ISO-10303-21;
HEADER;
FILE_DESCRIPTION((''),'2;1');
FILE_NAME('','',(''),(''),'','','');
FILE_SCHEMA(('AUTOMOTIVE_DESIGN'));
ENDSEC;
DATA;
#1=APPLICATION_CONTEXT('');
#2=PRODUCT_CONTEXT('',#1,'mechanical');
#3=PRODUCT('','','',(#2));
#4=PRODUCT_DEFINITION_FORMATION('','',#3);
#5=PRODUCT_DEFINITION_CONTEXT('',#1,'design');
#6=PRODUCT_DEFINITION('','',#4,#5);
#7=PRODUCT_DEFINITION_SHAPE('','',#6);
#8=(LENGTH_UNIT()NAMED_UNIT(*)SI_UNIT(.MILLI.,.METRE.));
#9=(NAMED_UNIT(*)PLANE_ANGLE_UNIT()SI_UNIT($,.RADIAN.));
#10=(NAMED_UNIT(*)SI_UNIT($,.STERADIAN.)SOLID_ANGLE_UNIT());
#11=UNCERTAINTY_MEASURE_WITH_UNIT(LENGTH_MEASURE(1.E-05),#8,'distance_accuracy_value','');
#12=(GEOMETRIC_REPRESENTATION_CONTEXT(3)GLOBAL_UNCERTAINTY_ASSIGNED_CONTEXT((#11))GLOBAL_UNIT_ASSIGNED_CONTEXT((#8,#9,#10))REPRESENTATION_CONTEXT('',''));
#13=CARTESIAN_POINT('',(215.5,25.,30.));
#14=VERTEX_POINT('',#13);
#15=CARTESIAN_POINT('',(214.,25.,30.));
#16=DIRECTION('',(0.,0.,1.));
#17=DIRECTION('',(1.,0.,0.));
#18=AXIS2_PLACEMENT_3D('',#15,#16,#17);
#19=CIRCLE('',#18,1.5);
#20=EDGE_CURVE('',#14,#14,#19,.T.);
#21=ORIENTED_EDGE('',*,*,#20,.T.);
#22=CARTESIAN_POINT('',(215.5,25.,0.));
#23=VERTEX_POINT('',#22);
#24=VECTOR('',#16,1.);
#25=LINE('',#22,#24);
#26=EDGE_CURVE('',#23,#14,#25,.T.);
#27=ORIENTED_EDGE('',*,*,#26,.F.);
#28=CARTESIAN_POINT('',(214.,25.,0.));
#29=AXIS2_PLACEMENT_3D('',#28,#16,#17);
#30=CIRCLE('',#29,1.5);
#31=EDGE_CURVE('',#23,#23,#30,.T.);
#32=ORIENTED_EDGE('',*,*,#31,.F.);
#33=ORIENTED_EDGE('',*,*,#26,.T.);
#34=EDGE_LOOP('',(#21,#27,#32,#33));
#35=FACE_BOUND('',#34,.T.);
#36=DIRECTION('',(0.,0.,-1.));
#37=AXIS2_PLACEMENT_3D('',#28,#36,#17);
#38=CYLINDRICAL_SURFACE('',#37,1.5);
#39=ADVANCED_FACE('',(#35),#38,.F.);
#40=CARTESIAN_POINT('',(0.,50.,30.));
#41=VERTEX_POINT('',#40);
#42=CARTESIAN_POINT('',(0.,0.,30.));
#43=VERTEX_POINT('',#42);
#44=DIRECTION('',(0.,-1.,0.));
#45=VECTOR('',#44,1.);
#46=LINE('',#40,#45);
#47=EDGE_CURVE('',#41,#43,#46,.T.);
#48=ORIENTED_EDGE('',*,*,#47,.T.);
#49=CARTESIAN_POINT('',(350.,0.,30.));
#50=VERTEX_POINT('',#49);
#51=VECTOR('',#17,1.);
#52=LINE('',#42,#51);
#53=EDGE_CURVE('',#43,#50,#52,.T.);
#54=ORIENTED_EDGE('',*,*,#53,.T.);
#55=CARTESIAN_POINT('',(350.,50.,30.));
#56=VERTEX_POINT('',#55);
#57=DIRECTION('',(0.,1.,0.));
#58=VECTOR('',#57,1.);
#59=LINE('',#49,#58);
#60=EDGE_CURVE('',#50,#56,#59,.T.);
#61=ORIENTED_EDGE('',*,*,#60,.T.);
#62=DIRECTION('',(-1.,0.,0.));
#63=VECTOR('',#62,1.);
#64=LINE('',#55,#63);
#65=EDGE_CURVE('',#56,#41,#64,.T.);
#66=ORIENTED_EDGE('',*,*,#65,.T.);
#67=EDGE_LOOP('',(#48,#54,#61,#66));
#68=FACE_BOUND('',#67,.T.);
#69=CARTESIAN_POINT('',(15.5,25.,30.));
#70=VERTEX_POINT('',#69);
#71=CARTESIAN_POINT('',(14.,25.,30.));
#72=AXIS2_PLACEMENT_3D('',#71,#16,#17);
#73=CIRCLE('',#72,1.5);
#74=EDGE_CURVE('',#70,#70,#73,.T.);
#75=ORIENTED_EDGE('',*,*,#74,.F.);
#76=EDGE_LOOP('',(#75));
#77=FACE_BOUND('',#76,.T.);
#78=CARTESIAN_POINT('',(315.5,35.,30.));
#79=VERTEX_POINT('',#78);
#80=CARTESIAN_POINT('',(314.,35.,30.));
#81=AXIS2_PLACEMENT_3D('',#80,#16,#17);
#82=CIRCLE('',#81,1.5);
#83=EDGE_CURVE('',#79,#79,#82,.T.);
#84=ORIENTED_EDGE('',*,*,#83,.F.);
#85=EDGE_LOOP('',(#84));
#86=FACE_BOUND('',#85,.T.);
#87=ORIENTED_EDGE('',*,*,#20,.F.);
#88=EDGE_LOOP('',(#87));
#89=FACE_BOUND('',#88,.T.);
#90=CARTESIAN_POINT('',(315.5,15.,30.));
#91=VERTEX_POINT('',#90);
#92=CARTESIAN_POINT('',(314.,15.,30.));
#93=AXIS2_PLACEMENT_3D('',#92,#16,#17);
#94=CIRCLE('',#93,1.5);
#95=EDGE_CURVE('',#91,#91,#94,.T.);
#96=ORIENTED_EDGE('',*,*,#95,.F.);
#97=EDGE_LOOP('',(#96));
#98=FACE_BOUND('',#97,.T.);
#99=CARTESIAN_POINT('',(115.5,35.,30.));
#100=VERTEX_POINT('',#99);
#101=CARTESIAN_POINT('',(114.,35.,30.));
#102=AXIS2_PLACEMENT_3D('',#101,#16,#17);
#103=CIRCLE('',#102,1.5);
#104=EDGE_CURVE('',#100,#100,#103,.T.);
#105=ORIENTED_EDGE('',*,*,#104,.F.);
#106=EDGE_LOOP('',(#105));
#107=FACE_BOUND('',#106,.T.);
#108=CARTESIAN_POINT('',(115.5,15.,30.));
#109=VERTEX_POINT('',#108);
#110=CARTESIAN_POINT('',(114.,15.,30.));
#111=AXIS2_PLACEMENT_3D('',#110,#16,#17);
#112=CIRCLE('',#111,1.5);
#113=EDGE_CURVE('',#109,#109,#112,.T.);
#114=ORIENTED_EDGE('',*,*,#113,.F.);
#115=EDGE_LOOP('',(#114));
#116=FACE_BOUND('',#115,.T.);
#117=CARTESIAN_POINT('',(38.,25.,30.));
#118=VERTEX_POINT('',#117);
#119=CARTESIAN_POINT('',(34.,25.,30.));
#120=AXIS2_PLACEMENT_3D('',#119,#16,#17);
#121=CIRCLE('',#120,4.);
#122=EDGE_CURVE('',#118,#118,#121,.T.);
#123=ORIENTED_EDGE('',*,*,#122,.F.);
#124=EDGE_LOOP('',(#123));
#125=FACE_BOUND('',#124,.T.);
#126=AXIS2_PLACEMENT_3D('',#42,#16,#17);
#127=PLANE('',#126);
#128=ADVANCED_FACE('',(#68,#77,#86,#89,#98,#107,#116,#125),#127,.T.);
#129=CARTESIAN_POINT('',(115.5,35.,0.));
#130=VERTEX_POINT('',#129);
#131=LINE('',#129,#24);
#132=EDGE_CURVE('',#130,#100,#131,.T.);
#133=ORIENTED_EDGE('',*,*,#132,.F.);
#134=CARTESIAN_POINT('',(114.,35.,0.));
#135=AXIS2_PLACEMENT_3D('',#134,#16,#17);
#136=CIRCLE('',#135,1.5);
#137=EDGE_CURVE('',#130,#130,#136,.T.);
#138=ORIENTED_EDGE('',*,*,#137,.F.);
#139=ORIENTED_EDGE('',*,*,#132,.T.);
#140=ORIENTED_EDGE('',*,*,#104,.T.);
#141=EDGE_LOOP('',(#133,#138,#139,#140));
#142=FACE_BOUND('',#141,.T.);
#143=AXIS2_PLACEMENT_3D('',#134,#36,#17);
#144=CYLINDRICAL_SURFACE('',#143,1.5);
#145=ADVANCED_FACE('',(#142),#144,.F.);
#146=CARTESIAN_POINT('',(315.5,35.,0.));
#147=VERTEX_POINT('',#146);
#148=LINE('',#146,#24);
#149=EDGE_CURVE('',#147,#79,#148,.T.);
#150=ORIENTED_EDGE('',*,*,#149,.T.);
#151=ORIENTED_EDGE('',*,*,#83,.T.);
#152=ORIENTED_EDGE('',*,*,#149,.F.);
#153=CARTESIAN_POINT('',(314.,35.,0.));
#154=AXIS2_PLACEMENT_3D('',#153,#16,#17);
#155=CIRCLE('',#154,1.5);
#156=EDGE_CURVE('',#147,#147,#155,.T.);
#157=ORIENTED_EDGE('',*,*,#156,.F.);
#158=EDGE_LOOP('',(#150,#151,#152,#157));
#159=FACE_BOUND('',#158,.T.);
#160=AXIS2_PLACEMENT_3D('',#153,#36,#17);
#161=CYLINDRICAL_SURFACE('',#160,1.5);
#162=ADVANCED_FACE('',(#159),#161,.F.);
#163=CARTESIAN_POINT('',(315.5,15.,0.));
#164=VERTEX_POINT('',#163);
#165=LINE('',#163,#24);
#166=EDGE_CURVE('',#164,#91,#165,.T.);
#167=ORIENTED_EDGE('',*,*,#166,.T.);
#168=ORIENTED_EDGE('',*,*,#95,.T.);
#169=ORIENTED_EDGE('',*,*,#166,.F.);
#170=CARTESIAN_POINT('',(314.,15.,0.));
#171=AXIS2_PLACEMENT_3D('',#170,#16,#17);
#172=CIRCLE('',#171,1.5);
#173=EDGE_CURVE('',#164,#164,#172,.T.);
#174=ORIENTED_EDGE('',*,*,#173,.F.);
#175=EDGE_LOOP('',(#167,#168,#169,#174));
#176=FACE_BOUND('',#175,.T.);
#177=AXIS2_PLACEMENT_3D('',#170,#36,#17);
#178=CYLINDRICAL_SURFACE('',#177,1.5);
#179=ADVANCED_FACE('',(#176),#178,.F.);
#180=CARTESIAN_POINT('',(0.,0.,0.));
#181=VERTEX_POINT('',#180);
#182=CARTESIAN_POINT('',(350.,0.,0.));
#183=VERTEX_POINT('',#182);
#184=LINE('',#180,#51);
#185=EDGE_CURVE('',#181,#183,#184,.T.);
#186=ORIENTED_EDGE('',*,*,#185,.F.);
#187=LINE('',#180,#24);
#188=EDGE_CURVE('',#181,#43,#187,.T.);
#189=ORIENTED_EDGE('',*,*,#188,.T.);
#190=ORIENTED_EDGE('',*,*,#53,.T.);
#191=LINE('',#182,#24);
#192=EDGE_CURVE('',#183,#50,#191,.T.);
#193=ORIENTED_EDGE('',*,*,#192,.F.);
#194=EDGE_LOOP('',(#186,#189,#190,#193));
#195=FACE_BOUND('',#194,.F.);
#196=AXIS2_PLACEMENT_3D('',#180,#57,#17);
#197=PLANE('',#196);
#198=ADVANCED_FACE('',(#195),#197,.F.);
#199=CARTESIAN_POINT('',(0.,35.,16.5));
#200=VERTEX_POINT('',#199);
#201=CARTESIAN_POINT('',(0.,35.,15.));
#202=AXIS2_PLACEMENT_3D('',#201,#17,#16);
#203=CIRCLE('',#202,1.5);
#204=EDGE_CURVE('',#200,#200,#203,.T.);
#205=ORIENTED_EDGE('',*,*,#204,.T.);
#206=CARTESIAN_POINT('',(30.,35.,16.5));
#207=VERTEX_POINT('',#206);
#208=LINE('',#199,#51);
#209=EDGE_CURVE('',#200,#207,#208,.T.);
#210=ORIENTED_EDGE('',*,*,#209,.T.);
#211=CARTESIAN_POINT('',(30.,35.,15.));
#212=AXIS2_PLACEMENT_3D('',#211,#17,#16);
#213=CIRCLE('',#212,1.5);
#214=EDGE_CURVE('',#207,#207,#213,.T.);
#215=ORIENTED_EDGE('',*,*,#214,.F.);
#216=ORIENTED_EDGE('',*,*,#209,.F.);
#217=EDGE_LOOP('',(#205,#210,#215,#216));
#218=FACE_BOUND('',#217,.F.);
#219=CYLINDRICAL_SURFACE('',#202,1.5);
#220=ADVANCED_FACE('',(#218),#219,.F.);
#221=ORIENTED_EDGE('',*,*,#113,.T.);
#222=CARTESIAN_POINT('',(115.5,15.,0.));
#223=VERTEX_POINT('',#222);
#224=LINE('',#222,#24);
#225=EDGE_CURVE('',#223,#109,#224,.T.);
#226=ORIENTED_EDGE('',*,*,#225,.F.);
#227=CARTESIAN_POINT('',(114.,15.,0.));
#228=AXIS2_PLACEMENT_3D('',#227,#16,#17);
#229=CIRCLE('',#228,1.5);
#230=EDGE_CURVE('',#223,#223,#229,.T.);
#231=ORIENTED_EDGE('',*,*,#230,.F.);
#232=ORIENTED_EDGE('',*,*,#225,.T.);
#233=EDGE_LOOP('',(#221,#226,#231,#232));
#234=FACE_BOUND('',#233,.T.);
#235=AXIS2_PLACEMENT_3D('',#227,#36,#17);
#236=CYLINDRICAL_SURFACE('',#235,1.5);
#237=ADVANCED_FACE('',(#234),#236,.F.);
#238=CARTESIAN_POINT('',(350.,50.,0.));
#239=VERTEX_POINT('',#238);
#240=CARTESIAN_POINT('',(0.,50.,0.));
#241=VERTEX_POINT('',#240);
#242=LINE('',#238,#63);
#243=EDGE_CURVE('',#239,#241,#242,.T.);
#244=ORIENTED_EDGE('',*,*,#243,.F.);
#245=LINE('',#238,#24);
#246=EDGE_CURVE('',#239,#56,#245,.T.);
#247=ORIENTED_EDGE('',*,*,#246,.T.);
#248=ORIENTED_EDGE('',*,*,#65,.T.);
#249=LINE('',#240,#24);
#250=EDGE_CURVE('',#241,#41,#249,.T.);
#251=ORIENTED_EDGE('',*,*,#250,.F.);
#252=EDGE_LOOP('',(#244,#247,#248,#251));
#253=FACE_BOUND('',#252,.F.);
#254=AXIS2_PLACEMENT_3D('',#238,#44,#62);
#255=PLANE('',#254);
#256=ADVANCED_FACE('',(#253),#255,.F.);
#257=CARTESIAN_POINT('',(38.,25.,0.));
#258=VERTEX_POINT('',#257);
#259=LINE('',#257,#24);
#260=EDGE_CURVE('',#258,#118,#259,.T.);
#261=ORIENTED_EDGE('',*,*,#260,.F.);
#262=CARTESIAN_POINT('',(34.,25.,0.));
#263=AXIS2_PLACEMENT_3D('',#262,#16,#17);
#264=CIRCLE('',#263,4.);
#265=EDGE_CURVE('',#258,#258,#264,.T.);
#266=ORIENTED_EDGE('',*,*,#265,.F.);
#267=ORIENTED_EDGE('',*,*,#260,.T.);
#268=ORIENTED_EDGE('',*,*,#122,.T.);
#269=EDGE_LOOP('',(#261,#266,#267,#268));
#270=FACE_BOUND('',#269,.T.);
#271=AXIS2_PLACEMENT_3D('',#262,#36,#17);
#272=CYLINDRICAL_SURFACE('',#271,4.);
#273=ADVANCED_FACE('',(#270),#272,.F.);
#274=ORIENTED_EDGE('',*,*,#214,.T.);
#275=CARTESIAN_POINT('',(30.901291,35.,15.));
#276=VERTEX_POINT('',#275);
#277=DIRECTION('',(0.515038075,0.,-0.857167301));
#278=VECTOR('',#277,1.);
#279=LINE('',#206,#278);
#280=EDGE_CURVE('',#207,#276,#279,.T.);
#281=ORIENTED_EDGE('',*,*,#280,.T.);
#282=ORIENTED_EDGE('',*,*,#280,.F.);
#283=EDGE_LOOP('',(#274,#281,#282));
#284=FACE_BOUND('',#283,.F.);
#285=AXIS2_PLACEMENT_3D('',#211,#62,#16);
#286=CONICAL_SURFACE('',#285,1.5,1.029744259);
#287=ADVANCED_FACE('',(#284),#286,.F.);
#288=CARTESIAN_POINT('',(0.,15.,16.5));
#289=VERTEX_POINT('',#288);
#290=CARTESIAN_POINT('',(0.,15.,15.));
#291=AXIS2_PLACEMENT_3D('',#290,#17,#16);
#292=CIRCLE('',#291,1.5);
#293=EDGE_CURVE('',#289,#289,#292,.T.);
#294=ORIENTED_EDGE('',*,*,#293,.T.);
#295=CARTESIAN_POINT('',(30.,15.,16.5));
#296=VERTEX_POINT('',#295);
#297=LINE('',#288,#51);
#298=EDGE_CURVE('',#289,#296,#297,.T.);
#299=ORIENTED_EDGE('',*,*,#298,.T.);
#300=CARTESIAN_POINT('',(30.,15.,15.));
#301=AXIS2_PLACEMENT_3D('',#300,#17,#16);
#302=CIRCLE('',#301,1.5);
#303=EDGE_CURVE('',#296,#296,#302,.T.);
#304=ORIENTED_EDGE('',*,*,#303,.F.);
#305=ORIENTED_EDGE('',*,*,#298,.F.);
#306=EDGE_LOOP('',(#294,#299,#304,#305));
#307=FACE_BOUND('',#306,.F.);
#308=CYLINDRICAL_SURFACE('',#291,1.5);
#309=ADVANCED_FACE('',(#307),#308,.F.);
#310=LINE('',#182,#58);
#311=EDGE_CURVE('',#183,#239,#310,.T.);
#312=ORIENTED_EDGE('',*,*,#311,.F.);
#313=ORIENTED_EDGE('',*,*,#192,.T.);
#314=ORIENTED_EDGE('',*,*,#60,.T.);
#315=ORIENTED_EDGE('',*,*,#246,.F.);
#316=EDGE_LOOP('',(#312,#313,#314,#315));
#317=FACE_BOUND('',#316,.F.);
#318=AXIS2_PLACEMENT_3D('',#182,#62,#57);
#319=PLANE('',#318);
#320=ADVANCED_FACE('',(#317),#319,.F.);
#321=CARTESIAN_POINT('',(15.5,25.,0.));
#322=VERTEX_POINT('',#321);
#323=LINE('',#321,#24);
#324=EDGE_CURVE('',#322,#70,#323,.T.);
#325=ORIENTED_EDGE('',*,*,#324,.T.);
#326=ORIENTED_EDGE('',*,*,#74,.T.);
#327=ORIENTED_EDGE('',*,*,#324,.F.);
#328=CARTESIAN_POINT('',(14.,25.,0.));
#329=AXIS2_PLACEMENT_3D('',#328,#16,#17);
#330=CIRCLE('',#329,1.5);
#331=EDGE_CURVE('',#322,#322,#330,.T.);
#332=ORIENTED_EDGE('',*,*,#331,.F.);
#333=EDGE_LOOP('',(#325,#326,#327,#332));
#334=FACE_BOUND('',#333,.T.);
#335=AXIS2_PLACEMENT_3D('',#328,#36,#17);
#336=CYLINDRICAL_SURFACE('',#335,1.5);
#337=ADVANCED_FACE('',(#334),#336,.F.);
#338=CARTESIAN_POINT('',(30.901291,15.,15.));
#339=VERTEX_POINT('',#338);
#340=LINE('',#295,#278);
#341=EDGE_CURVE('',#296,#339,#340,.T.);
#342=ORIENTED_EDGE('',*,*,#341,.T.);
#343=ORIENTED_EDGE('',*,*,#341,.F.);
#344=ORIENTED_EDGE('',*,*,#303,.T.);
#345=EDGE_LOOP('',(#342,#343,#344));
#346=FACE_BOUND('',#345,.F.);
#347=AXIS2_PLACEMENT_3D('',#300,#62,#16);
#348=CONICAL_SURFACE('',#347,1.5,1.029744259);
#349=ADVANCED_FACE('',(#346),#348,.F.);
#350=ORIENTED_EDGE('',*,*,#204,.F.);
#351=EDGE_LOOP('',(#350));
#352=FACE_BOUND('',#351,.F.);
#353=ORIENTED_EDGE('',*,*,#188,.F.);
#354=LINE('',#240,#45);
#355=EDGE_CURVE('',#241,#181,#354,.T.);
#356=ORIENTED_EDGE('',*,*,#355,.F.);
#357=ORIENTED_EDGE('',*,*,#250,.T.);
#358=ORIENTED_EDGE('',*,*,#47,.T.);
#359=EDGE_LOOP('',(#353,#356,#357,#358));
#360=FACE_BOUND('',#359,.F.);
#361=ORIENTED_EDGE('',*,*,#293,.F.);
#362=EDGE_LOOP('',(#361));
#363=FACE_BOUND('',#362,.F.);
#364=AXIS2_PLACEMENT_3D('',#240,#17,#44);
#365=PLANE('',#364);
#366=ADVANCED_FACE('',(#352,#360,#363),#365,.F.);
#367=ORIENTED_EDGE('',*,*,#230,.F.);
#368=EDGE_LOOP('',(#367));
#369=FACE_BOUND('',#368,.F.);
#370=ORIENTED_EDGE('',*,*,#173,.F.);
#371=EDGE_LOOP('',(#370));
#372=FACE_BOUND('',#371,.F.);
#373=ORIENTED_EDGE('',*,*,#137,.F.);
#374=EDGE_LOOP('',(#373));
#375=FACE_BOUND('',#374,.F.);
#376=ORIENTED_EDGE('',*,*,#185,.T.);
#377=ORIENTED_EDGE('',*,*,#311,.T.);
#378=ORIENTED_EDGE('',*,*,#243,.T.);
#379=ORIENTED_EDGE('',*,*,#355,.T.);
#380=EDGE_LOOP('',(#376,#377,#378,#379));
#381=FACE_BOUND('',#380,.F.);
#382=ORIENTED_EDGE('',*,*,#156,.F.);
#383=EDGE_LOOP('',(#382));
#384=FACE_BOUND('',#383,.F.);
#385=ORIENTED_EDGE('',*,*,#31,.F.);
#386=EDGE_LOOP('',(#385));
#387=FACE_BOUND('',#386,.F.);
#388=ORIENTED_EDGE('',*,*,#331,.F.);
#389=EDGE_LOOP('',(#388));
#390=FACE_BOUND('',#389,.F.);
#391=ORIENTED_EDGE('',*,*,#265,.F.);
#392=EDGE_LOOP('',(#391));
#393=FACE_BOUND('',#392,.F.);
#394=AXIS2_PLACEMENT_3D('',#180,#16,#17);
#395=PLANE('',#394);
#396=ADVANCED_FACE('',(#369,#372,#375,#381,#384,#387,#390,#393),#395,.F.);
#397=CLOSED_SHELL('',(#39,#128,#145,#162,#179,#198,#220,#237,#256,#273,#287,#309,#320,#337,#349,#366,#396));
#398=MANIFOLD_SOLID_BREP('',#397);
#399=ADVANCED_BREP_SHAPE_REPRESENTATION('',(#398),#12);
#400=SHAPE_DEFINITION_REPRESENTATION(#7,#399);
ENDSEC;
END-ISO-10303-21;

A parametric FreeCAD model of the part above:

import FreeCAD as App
import Part
import Sketcher


def add_polygon(sketch, points):
    """Adds a closed chain of lines whose ends are joined by coincident constraints."""
    first, n = sketch.GeometryCount, len(points)
    for a, b in zip(points, points[1:] + points[:1]):
        sketch.addGeometry(Part.LineSegment(App.Vector(*a, 0), App.Vector(*b, 0)), False)
    for i in range(n):
        sketch.addConstraint(Sketcher.Constraint("Coincident", first + i, 2, first + (i + 1) % n, 1))

doc = App.newDocument("Part")
body = doc.addObject("PartDesign::Body", "Body")

# Sketch on XY plane
sketch1 = body.newObject("Sketcher::SketchObject", "Sketch")
sketch1.AttachmentSupport = (doc.getObject("XY_Plane"), [""])
sketch1.MapMode = "FlatFace"
add_polygon(sketch1, [(0, 50), (0, 0), (350, 0), (350, 50)])  # lines 0-3
sketch1.addGeometry(Part.Circle(App.Vector(114, 15, 0), App.Vector(0, 0, 1), 1.5), False)  # 4
sketch1.addGeometry(Part.Circle(App.Vector(314, 15, 0), App.Vector(0, 0, 1), 1.5), False)  # 5
sketch1.addGeometry(Part.Circle(App.Vector(14, 25, 0), App.Vector(0, 0, 1), 1.5), False)  # 6
sketch1.addGeometry(Part.Circle(App.Vector(34, 25, 0), App.Vector(0, 0, 1), 4), False)  # 7
sketch1.addGeometry(Part.Circle(App.Vector(114, 35, 0), App.Vector(0, 0, 1), 1.5), False)  # 8
sketch1.addGeometry(Part.Circle(App.Vector(214, 25, 0), App.Vector(0, 0, 1), 1.5), False)  # 9
sketch1.addGeometry(Part.Circle(App.Vector(314, 35, 0), App.Vector(0, 0, 1), 1.5), False)  # 10
sketch1.addConstraint(Sketcher.Constraint("Vertical", 0))
sketch1.addConstraint(Sketcher.Constraint("Horizontal", 1))
sketch1.addConstraint(Sketcher.Constraint("Vertical", 2))
sketch1.addConstraint(Sketcher.Constraint("Horizontal", 3))
sketch1.addConstraint(Sketcher.Constraint("Coincident", 0, 2, -1, 1))
sketch1.addConstraint(Sketcher.Constraint("Equal", 4, 5))
sketch1.addConstraint(Sketcher.Constraint("Equal", 5, 6))
sketch1.addConstraint(Sketcher.Constraint("Equal", 6, 8))
sketch1.addConstraint(Sketcher.Constraint("Equal", 8, 9))
sketch1.addConstraint(Sketcher.Constraint("Equal", 9, 10))
sketch1.addConstraint(Sketcher.Constraint("Horizontal", 4, 3, 5, 3))
sketch1.addConstraint(Sketcher.Constraint("Horizontal", 6, 3, 7, 3))
sketch1.addConstraint(Sketcher.Constraint("Horizontal", 7, 3, 9, 3))
sketch1.addConstraint(Sketcher.Constraint("Horizontal", 8, 3, 10, 3))
sketch1.addConstraint(Sketcher.Constraint("Vertical", 4, 3, 8, 3))
sketch1.addConstraint(Sketcher.Constraint("Vertical", 5, 3, 10, 3))
sketch1.addConstraint(Sketcher.Constraint("Diameter", 4, 3.0))
sketch1.addConstraint(Sketcher.Constraint("Diameter", 7, 8.0))
sketch1.addConstraint(Sketcher.Constraint("DistanceX", 1, 1, 1, 2, 350.0))
sketch1.addConstraint(Sketcher.Constraint("DistanceY", 0, 2, 0, 1, 50.0))
sketch1.addConstraint(Sketcher.Constraint("DistanceX", -1, 1, 6, 3, 14.0))
sketch1.addConstraint(Sketcher.Constraint("DistanceX", -1, 1, 7, 3, 34.0))
sketch1.addConstraint(Sketcher.Constraint("DistanceX", 6, 3, 4, 3, 100.0))
sketch1.addConstraint(Sketcher.Constraint("DistanceY", 4, 3, 6, 3, 10.0))
sketch1.addConstraint(Sketcher.Constraint("DistanceY", 7, 3, 8, 3, 10.0))
sketch1.addConstraint(Sketcher.Constraint("DistanceX", 4, 3, 9, 3, 100.0))
sketch1.addConstraint(Sketcher.Constraint("DistanceX", 9, 3, 5, 3, 100.0))
sketch1.addConstraint(Sketcher.Constraint("DistanceY", -1, 1, 4, 3, 15.0))
pad1 = body.newObject("PartDesign::Pad", "Pad")
pad1.Profile = sketch1
pad1.Length = 30

# Sketch on YZ plane
sketch2 = body.newObject("Sketcher::SketchObject", "Sketch001")
sketch2.AttachmentSupport = (doc.getObject("YZ_Plane"), [""])
sketch2.MapMode = "FlatFace"
sketch2.addGeometry(Part.Circle(App.Vector(35, 15, 0), App.Vector(0, 0, 1), 1.5), False)
sketch2.addGeometry(Part.Circle(App.Vector(15, 15, 0), App.Vector(0, 0, 1), 1.5), False)
sketch2.addConstraint(Sketcher.Constraint("Equal", 0, 1))
sketch2.addConstraint(Sketcher.Constraint("Horizontal", 0, 3, 1, 3))
sketch2.addConstraint(Sketcher.Constraint("Diameter", 0, 3.0))
sketch2.addConstraint(Sketcher.Constraint("DistanceX", -1, 1, 0, 3, 35.0))
sketch2.addConstraint(Sketcher.Constraint("DistanceY", -1, 1, 0, 3, 15.0))
sketch2.addConstraint(Sketcher.Constraint("DistanceX", -1, 1, 1, 3, 15.0))
doc.recompute()
hole = body.newObject("PartDesign::Hole", "Hole")
hole.Profile = sketch2
hole.ThreadType = "None"
hole.Diameter = 3
hole.DepthType = "Dimension"
hole.Depth = 30
hole.DrillPoint = "Angled"
hole.DrillPointAngle = 118
hole.Reversed = True

doc.recompute()
